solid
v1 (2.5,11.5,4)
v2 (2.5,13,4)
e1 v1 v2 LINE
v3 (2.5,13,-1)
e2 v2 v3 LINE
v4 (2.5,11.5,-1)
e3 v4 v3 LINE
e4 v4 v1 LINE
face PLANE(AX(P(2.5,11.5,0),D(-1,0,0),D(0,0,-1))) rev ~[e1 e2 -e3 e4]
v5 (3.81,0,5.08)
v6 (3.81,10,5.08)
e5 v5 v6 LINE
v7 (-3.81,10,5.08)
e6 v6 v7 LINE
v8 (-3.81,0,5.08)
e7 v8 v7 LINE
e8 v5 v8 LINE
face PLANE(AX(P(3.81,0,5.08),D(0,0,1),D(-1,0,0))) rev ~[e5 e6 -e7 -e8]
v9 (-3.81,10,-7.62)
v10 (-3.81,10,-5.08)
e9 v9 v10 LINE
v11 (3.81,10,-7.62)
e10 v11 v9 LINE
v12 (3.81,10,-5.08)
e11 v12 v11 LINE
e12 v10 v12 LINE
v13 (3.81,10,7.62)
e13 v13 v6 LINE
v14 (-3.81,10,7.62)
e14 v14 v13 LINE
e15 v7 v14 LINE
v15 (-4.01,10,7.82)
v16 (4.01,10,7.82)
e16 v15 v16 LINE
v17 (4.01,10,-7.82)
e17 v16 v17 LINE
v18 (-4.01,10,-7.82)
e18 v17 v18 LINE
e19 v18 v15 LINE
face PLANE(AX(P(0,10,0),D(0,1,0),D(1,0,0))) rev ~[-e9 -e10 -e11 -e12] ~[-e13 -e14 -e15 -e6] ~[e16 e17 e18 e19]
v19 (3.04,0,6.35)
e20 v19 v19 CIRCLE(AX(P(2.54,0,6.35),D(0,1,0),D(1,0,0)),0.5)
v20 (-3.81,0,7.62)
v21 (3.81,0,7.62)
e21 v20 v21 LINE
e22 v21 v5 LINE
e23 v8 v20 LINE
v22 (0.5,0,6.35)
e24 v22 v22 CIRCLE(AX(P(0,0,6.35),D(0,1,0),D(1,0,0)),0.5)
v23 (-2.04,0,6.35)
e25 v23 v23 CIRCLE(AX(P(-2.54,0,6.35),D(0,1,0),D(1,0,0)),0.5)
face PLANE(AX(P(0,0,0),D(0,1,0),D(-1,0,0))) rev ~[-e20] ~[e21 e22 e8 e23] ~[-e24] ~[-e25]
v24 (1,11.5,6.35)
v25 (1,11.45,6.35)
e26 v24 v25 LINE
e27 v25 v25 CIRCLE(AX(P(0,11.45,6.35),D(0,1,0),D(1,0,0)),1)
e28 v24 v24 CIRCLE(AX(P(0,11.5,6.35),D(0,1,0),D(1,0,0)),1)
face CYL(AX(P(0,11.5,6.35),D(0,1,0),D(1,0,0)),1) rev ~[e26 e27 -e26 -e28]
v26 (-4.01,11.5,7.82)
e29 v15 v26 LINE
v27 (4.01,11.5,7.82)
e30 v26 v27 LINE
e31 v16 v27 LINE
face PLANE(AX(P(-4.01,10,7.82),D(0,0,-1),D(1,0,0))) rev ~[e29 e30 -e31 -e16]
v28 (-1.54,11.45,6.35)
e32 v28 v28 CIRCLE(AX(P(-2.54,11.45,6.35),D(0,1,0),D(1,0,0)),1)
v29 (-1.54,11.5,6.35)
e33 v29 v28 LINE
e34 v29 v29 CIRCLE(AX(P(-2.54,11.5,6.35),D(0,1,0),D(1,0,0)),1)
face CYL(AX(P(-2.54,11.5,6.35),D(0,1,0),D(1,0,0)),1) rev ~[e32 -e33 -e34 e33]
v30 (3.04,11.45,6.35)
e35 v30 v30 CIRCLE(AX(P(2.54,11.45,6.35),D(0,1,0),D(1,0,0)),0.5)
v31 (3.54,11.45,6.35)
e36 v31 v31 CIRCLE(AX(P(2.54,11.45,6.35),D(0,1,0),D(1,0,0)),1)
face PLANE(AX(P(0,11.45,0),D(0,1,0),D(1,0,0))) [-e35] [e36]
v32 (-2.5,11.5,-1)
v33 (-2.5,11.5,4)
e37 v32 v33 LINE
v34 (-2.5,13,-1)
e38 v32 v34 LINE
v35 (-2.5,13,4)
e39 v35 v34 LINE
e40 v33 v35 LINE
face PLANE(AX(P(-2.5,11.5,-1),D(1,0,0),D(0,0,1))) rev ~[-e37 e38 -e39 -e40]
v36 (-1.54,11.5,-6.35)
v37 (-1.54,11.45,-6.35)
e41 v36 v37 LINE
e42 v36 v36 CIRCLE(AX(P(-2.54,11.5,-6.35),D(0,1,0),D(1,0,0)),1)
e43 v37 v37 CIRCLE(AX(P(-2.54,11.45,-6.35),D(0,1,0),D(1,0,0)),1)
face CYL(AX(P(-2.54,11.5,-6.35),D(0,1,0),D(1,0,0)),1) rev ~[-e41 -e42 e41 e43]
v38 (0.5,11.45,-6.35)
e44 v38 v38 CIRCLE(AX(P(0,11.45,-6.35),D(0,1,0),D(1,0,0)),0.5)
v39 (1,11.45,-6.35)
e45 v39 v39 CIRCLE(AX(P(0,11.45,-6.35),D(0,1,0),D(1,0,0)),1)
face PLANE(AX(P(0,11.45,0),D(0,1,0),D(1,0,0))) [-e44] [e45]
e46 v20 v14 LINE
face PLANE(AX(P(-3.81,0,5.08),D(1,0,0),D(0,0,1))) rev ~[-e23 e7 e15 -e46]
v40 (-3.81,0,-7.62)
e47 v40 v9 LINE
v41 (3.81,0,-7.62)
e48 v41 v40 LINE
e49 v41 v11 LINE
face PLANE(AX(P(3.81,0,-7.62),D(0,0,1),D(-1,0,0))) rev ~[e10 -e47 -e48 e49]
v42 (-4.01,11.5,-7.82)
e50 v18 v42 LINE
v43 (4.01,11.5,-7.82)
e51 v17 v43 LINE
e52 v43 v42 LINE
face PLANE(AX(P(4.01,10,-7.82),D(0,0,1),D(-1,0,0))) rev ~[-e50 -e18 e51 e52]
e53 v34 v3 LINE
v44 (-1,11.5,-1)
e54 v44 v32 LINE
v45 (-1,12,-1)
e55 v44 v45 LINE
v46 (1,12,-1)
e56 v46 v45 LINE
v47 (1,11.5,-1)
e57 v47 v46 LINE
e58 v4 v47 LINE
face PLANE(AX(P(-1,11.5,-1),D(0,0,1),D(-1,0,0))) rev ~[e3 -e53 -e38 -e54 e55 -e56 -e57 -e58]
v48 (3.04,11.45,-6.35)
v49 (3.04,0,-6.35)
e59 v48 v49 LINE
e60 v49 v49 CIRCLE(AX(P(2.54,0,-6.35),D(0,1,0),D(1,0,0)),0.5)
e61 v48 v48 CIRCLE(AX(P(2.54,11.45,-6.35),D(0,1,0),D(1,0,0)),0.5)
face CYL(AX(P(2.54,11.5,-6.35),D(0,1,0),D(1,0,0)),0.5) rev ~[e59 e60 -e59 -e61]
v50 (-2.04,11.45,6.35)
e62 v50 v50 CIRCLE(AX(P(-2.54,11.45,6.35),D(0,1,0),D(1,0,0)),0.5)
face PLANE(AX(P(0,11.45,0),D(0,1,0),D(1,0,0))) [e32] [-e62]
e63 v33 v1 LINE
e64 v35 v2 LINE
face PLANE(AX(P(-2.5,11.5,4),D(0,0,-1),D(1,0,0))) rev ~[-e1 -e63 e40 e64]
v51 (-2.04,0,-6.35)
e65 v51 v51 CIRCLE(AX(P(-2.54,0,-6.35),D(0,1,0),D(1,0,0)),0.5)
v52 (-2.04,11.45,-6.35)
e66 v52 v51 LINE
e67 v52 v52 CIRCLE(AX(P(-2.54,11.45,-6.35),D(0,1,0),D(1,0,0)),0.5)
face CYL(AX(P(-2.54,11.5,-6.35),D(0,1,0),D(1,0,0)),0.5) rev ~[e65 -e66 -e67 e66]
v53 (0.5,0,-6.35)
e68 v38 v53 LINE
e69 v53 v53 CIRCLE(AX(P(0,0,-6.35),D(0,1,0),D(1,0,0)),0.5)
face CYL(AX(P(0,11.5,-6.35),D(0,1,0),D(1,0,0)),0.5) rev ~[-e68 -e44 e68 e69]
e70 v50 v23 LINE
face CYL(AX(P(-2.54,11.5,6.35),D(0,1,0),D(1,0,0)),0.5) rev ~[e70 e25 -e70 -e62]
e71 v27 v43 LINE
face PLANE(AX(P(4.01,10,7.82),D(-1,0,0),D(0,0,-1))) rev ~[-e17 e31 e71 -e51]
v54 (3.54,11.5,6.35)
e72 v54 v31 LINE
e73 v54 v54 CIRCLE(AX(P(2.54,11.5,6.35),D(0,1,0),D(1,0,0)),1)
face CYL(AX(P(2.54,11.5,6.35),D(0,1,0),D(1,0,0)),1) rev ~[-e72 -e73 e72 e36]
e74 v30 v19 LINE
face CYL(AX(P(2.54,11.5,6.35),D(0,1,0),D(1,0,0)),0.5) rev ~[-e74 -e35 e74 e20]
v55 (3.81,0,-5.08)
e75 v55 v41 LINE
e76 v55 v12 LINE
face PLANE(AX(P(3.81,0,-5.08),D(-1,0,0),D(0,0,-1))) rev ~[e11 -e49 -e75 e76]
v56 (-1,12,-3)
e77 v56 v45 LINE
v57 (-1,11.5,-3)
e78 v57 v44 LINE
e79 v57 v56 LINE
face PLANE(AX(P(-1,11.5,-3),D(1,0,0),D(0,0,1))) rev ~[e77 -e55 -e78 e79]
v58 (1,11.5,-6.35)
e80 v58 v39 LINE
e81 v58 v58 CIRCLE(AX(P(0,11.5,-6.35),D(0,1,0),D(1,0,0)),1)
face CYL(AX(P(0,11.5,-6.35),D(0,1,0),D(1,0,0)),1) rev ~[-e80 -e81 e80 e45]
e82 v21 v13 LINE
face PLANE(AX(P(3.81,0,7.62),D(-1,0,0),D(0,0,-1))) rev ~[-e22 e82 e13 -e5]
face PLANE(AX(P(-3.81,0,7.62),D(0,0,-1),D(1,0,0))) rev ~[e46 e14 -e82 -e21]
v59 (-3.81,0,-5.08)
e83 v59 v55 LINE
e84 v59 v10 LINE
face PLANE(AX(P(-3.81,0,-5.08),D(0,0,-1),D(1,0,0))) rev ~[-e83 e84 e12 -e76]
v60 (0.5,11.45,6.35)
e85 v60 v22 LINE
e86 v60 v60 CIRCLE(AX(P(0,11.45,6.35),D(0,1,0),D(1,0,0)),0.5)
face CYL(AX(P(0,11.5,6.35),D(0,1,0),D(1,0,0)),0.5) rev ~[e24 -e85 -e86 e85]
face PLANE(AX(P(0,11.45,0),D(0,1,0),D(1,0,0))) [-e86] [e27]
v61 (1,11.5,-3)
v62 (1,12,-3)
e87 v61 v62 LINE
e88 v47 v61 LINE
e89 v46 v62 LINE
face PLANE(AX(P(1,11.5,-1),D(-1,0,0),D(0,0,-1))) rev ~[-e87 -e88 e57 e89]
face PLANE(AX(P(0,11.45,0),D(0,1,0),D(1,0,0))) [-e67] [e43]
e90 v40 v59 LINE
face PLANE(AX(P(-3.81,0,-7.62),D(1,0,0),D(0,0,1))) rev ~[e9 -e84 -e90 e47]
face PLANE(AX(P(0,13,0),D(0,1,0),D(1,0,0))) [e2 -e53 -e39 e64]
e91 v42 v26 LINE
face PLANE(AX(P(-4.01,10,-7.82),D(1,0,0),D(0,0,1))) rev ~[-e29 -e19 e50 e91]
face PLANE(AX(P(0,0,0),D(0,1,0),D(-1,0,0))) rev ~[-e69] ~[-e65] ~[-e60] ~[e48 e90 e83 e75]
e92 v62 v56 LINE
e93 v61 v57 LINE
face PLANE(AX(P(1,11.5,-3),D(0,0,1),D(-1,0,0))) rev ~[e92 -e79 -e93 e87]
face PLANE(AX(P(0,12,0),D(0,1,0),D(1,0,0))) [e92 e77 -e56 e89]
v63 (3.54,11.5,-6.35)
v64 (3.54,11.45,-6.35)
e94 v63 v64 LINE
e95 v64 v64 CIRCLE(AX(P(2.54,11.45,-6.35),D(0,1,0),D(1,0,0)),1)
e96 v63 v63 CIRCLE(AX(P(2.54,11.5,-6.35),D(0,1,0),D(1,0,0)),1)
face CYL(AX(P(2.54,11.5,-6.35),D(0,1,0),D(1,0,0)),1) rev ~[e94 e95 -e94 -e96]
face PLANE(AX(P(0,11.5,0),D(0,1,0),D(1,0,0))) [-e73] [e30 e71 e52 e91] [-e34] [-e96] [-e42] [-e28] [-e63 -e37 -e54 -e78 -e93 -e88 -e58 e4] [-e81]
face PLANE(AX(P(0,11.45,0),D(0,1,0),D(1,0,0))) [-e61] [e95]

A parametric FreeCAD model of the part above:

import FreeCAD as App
import Part
import Sketcher
from FreeCAD import Vector

doc = App.newDocument("Part")
body = doc.addObject("PartDesign::Body", "Body")
body.AllowCompound = True

# Sketch on XZ plane
sketch1 = body.newObject("Sketcher::SketchObject", "Sketch")
sketch1.AttachmentSupport = (doc.getObject("XZ_Plane"), [""])
sketch1.MapMode = "FlatFace"
sketch1.addGeometry([
    Part.LineSegment(Vector(-3.8, -7.6, 0), Vector(-3.8, -5.1, 0)),  # 0
    Part.LineSegment(Vector(-3.8, -5.1, 0), Vector(3.8, -5.1, 0)),  # 1
    Part.LineSegment(Vector(3.8, -5.1, 0), Vector(3.8, -7.6, 0)),  # 2
    Part.LineSegment(Vector(3.8, -7.6, 0), Vector(-3.8, -7.6, 0)),  # 3
    Part.LineSegment(Vector(-3.8, 5.1, 0), Vector(-3.8, 7.6, 0)),  # 4
    Part.LineSegment(Vector(-3.8, 7.6, 0), Vector(3.8, 7.6, 0)),  # 5
    Part.LineSegment(Vector(3.8, 7.6, 0), Vector(3.8, 5.1, 0)),  # 6
    Part.LineSegment(Vector(3.8, 5.1, 0), Vector(-3.8, 5.1, 0)),  # 7
], False)
sketch1.addConstraint([
    Sketcher.Constraint("Coincident", 0, 2, 1, 1),
    Sketcher.Constraint("Coincident", 1, 2, 2, 1),
    Sketcher.Constraint("Coincident", 2, 2, 3, 1),
    Sketcher.Constraint("Coincident", 3, 2, 0, 1),
    Sketcher.Constraint("Coincident", 4, 2, 5, 1),
    Sketcher.Constraint("Coincident", 5, 2, 6, 1),
    Sketcher.Constraint("Coincident", 6, 2, 7, 1),
    Sketcher.Constraint("Coincident", 7, 2, 4, 1),
    Sketcher.Constraint("Vertical", 0),
    Sketcher.Constraint("Horizontal", 1),
    Sketcher.Constraint("Vertical", 2),
    Sketcher.Constraint("Horizontal", 3),
    Sketcher.Constraint("Vertical", 4),
    Sketcher.Constraint("Horizontal", 5),
    Sketcher.Constraint("Vertical", 6),
    Sketcher.Constraint("Horizontal", 7),
    Sketcher.Constraint("Symmetric", 2, 2, 4, 2, -1, 1),
    Sketcher.Constraint("Symmetric", 0, 2, 6, 2, -1, 1),
    Sketcher.Constraint("Vertical", 3, 2, 4, 2),
    Sketcher.Constraint("DistanceX", 1, 1, 1, 2, 7.62),
    Sketcher.Constraint("DistanceY", 0, 1, 0, 2, 2.54),
    Sketcher.Constraint("DistanceY", 0, 2, 4, 2, 12.7),
])
pad1 = body.newObject("PartDesign::Pad", "Pad")
pad1.Profile = sketch1
pad1.Length = 10
pad1.Reversed = True

# Sketch on XZ plane
sketch2 = body.newObject("Sketcher::SketchObject", "Sketch001")
sketch2.AttachmentSupport = (doc.getObject("XZ_Plane"), [""])
sketch2.MapMode = "FlatFace"
sketch2.AttachmentOffset = App.Placement(Vector(0, 0, -10), App.Rotation())
sketch2.addGeometry([
    Part.LineSegment(Vector(-4, -8, 0), Vector(-4, 8, 0)),
    Part.LineSegment(Vector(-4, 8, 0), Vector(4, 8, 0)),
    Part.LineSegment(Vector(4, 8, 0), Vector(4, -8, 0)),
    Part.LineSegment(Vector(4, -8, 0), Vector(-4, -8, 0)),
], False)
sketch2.addConstraint([
    Sketcher.Constraint("Coincident", 0, 2, 1, 1),
    Sketcher.Constraint("Coincident", 1, 2, 2, 1),
    Sketcher.Constraint("Coincident", 2, 2, 3, 1),
    Sketcher.Constraint("Coincident", 3, 2, 0, 1),
    Sketcher.Constraint("Vertical", 0),
    Sketcher.Constraint("Horizontal", 1),
    Sketcher.Constraint("Vertical", 2),
    Sketcher.Constraint("Horizontal", 3),
    Sketcher.Constraint("Symmetric", 0, 2, 2, 2, -1, 1),
    Sketcher.Constraint("DistanceX", 1, 1, 1, 2, 8.02),
    Sketcher.Constraint("DistanceY", 0, 1, 0, 2, 15.64),
])
pad2 = body.newObject("PartDesign::Pad", "Pad001")
pad2.Profile = sketch2
pad2.Length = 1.5
pad2.Reversed = True

# Sketch on XZ plane
sketch3 = body.newObject("Sketcher::SketchObject", "Sketch002")
sketch3.AttachmentSupport = (doc.getObject("XZ_Plane"), [""])
sketch3.MapMode = "FlatFace"
sketch3.AttachmentOffset = App.Placement(Vector(0, 0, -11.5), App.Rotation())
sketch3.addGeometry([
    Part.Circle(Vector(-2.5, 6.3, 0), Vector(0, 0, 1), 0.5),  # 0
    Part.Circle(Vector(0, 6.3, 0), Vector(0, 0, 1), 0.5),  # 1
    Part.Circle(Vector(2.5, 6.3, 0), Vector(0, 0, 1), 0.5),  # 2
    Part.Circle(Vector(-2.5, -6.3, 0), Vector(0, 0, 1), 0.5),  # 3
    Part.Circle(Vector(0, -6.3, 0), Vector(0, 0, 1), 0.5),  # 4
    Part.Circle(Vector(2.5, -6.3, 0), Vector(0, 0, 1), 0.5),  # 5
], False)
sketch3.addConstraint([
    Sketcher.Constraint("Equal", 0, 1),
    Sketcher.Constraint("Equal", 1, 2),
    Sketcher.Constraint("Equal", 2, 3),
    Sketcher.Constraint("Equal", 3, 4),
    Sketcher.Constraint("Equal", 4, 5),
    Sketcher.Constraint("Symmetric", 2, 3, 3, 3, -1, 1),
    Sketcher.Constraint("Symmetric", 1, 3, 4, 3, -1, 1),
    Sketcher.Constraint("Symmetric", 0, 3, 5, 3, -1, 1),
    Sketcher.Constraint("Symmetric", 0, 3, 2, 3, -2),
    Sketcher.Constraint("PointOnObject", 1, 3, -2),
    Sketcher.Constraint("Horizontal", 0, 3, 1, 3),
    Sketcher.Constraint("Diameter", 0, 1.0),
    Sketcher.Constraint("DistanceX", 0, 3, -1, 1, 2.54),
    Sketcher.Constraint("DistanceY", 3, 3, 0, 3, 12.7),
])
pocket1 = body.newObject("PartDesign::Pocket", "Pocket")
pocket1.Profile = sketch3
pocket1.Type = "ThroughAll"
pocket1.Reversed = True

# Sketch on XZ plane
sketch4 = body.newObject("Sketcher::SketchObject", "Sketch003")
sketch4.AttachmentSupport = (doc.getObject("XZ_Plane"), [""])
sketch4.MapMode = "FlatFace"
sketch4.AttachmentOffset = App.Placement(Vector(0, 0, -11.5), App.Rotation())
sketch4.addGeometry([
    Part.Circle(Vector(-2.5, 6.3, 0), Vector(0, 0, 1), 1),  # 0
    Part.Circle(Vector(-2.5, 6.3, 0), Vector(0, 0, 1), 0.5),  # 1
    Part.Circle(Vector(0, 6.3, 0), Vector(0, 0, 1), 1),  # 2
    Part.Circle(Vector(0, 6.3, 0), Vector(0, 0, 1), 0.5),  # 3
    Part.Circle(Vector(2.5, 6.3, 0), Vector(0, 0, 1), 1),  # 4
    Part.Circle(Vector(2.5, 6.3, 0), Vector(0, 0, 1), 0.5),  # 5
    Part.Circle(Vector(-2.5, -6.3, 0), Vector(0, 0, 1), 1),  # 6
    Part.Circle(Vector(-2.5, -6.3, 0), Vector(0, 0, 1), 0.5),  # 7
    Part.Circle(Vector(0, -6.3, 0), Vector(0, 0, 1), 1),  # 8
    Part.Circle(Vector(0, -6.3, 0), Vector(0, 0, 1), 0.5),  # 9
    Part.Circle(Vector(2.5, -6.3, 0), Vector(0, 0, 1), 1),  # 10
    Part.Circle(Vector(2.5, -6.3, 0), Vector(0, 0, 1), 0.5),  # 11
], False)
sketch4.addConstraint([
    Sketcher.Constraint("Coincident", 1, 3, 0, 3),
    Sketcher.Constraint("Coincident", 3, 3, 2, 3),
    Sketcher.Constraint("Coincident", 5, 3, 4, 3),
    Sketcher.Constraint("Coincident", 7, 3, 6, 3),
    Sketcher.Constraint("Coincident", 9, 3, 8, 3),
    Sketcher.Constraint("Coincident", 11, 3, 10, 3),
    Sketcher.Constraint("Equal", 0, 2),
    Sketcher.Constraint("Equal", 1, 3),
    Sketcher.Constraint("Equal", 2, 4),
    Sketcher.Constraint("Equal", 3, 5),
    Sketcher.Constraint("Equal", 4, 6),
    Sketcher.Constraint("Equal", 5, 7),
    Sketcher.Constraint("Equal", 6, 8),
    Sketcher.Constraint("Equal", 7, 9),
    Sketcher.Constraint("Equal", 8, 10),
    Sketcher.Constraint("Equal", 9, 11),
    Sketcher.Constraint("Symmetric", 4, 3, 6, 3, -1, 1),
    Sketcher.Constraint("Symmetric", 2, 3, 8, 3, -1, 1),
    Sketcher.Constraint("Symmetric", 0, 3, 10, 3, -1, 1),
    Sketcher.Constraint("Symmetric", 0, 3, 4, 3, -2),
    Sketcher.Constraint("PointOnObject", 2, 3, -2),
    Sketcher.Constraint("Horizontal", 1, 3, 2, 3),
    Sketcher.Constraint("Diameter", 0, 2.0),
    Sketcher.Constraint("Diameter", 1, 1.0),
    Sketcher.Constraint("DistanceX", 0, 3, -1, 1, 2.54),
    Sketcher.Constraint("DistanceY", 6, 3, 0, 3, 12.7),
])
pocket2 = body.newObject("PartDesign::Pocket", "Pocket001")
pocket2.Profile = sketch4
pocket2.Length = 0.05
pocket2.Reversed = True

# Sketch on XZ plane
sketch5 = body.newObject("Sketcher::SketchObject", "Sketch004")
sketch5.AttachmentSupport = (doc.getObject("XZ_Plane"), [""])
sketch5.MapMode = "FlatFace"
sketch5.AttachmentOffset = App.Placement(Vector(0, 0, -11.5), App.Rotation())
sketch5.addGeometry([
    Part.LineSegment(Vector(-2, -1, 0), Vector(-2, 4, 0)),
    Part.LineSegment(Vector(-2, 4, 0), Vector(2, 4, 0)),
    Part.LineSegment(Vector(2, 4, 0), Vector(2, -1, 0)),
    Part.LineSegment(Vector(2, -1, 0), Vector(-2, -1, 0)),
], False)
sketch5.addConstraint([
    Sketcher.Constraint("Coincident", 0, 2, 1, 1),
    Sketcher.Constraint("Coincident", 1, 2, 2, 1),
    Sketcher.Constraint("Coincident", 2, 2, 3, 1),
    Sketcher.Constraint("Coincident", 3, 2, 0, 1),
    Sketcher.Constraint("Vertical", 0),
    Sketcher.Constraint("Horizontal", 1),
    Sketcher.Constraint("Vertical", 2),
    Sketcher.Constraint("Horizontal", 3),
    Sketcher.Constraint("Equal", 3, 0),
    Sketcher.Constraint("DistanceX", 1, 1, 1, 2, 5.0),
    Sketcher.Constraint("DistanceY", 2, 2, -1, 1, 1.0),
    Sketcher.Constraint("DistanceX", 0, 2, -1, 1, 2.5),
])
pad3 = body.newObject("PartDesign::Pad", "Pad002")
pad3.Profile = sketch5
pad3.Length = 1.5
pad3.Reversed = True

# Sketch on XZ plane
sketch6 = body.newObject("Sketcher::SketchObject", "Sketch005")
sketch6.AttachmentSupport = (doc.getObject("XZ_Plane"), [""])
sketch6.MapMode = "FlatFace"
sketch6.AttachmentOffset = App.Placement(Vector(0, 0, -11.5), App.Rotation())
sketch6.addGeometry([
    Part.LineSegment(Vector(-1, -3, 0), Vector(-1, -1, 0)),
    Part.LineSegment(Vector(-1, -1, 0), Vector(1, -1, 0)),
    Part.LineSegment(Vector(1, -1, 0), Vector(1, -3, 0)),
    Part.LineSegment(Vector(1, -3, 0), Vector(-1, -3, 0)),
], False)
sketch6.addConstraint([
    Sketcher.Constraint("Coincident", 0, 2, 1, 1),
    Sketcher.Constraint("Coincident", 1, 2, 2, 1),
    Sketcher.Constraint("Coincident", 2, 2, 3, 1),
    Sketcher.Constraint("Coincident", 3, 2, 0, 1),
    Sketcher.Constraint("Vertical", 0),
    Sketcher.Constraint("Horizontal", 1),
    Sketcher.Constraint("Vertical", 2),
    Sketcher.Constraint("Horizontal", 3),
    Sketcher.Constraint("Equal", 3, 0),
    Sketcher.Constraint("DistanceX", 1, 1, 1, 2, 2.0),
    Sketcher.Constraint("DistanceX", 0, 2, -1, 1, 1.0),
    Sketcher.Constraint("DistanceY", 0, 2, -1, 1, 1.0),
])
pad4 = body.newObject("PartDesign::Pad", "Pad003")
pad4.Profile = sketch6
pad4.Length = 0.5
pad4.Reversed = True

doc.recompute()
